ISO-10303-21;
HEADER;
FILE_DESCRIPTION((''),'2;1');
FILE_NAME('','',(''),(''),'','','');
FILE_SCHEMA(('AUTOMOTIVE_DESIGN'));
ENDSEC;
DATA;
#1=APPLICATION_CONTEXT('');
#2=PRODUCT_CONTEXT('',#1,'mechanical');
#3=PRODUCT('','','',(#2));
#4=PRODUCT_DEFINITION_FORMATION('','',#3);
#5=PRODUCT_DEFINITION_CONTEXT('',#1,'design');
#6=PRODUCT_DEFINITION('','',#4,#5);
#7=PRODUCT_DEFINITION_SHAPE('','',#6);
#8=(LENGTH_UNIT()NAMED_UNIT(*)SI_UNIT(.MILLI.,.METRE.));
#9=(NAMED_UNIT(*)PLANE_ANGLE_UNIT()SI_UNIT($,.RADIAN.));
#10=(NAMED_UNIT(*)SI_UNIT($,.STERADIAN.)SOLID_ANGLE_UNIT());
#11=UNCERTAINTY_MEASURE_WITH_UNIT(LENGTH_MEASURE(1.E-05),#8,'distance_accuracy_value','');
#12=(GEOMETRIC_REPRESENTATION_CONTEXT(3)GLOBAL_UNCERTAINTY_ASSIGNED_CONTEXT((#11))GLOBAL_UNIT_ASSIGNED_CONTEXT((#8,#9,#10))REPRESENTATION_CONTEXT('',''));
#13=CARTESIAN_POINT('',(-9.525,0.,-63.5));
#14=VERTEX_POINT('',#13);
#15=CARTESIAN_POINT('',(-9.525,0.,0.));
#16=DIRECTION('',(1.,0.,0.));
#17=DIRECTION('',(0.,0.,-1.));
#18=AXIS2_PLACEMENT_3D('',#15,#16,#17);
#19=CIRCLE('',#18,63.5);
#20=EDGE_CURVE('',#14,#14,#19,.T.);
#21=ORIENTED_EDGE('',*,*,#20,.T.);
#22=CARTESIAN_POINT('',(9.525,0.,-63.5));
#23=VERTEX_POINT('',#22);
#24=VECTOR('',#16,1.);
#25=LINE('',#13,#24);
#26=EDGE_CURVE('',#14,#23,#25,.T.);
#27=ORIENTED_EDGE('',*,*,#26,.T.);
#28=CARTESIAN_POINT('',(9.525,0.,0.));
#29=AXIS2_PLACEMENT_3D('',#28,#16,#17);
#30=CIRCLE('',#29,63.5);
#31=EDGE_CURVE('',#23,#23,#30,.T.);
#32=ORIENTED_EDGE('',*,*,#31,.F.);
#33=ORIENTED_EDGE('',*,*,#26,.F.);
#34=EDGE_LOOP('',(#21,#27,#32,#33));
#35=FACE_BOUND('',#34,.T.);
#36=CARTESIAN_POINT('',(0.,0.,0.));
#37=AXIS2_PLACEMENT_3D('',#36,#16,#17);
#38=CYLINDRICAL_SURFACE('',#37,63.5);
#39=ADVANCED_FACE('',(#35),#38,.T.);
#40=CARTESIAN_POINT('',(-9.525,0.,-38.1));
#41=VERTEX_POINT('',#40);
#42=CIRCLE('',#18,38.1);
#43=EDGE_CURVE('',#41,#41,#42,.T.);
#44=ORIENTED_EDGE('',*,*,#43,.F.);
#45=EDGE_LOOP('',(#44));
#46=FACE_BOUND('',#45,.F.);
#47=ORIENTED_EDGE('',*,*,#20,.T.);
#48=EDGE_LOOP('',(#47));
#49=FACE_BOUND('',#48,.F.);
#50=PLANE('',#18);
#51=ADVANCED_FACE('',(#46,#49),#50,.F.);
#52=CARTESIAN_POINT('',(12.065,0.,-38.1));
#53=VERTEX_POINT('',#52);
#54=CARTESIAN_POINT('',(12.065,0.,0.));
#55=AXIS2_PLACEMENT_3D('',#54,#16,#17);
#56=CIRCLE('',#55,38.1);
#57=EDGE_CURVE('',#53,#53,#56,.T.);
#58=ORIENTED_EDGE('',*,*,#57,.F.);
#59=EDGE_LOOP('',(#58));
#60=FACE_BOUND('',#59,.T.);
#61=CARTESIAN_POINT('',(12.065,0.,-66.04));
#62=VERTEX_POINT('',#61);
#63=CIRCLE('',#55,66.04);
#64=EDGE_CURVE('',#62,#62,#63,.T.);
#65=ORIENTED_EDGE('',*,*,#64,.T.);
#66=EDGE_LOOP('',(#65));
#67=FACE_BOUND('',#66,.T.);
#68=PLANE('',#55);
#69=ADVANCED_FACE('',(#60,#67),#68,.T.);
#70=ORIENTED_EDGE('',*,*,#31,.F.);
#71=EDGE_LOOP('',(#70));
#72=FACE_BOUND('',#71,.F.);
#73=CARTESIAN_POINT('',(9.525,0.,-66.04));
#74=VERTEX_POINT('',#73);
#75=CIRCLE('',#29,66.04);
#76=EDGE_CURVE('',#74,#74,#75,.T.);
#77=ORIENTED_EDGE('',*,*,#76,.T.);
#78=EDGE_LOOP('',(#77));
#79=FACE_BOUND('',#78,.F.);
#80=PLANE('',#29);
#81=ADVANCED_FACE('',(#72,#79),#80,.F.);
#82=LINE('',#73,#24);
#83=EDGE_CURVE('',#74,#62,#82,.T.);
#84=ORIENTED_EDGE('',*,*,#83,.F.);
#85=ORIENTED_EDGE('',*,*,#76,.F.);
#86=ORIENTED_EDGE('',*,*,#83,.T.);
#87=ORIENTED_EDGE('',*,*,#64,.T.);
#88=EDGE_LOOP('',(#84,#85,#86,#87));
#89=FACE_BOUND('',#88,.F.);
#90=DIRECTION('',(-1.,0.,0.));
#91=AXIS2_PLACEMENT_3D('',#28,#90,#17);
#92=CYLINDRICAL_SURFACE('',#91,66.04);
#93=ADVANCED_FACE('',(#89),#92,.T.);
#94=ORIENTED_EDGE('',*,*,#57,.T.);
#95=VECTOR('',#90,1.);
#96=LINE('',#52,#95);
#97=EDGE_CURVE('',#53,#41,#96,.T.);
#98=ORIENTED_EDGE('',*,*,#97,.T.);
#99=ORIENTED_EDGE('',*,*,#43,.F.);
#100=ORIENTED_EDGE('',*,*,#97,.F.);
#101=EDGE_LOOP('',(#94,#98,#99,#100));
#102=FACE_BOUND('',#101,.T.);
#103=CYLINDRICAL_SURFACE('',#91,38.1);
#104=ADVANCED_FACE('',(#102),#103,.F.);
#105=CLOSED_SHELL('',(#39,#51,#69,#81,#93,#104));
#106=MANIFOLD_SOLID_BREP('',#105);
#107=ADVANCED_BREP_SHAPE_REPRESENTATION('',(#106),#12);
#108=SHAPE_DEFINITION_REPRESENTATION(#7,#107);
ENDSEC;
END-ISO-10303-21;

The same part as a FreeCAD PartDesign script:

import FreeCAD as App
import Part
import Sketcher

V = App.Vector
Q = App.Units.Quantity

doc = App.newDocument("Part")
body = doc.addObject("PartDesign::Body", "Body")

sketch1 = body.newObject("Sketcher::SketchObject", "Sketch")
sketch1.AttachmentSupport = (doc.getObject("YZ_Plane"), [""])
sketch1.MapMode = "FlatFace"
sketch1.addGeometry([
    Part.Circle(V(0, 0, 0), V(0, 0, 1), 63.5),
    Part.Circle(V(0, 0, 0), V(0, 0, 1), 38.1),
], False)
sketch1.addConstraint([
    Sketcher.Constraint("Coincident", 0, 3, -1, 1),
    Sketcher.Constraint("Coincident", 1, 3, -1, 1),
    Sketcher.Constraint("Diameter", 0, Q("5 in")),
    Sketcher.Constraint("Diameter", 1, Q("3 in")),
])
pad1 = body.newObject("PartDesign::Pad", "Pad")
pad1.Profile = sketch1
pad1.Length = Q("0.75 in")
pad1.Midplane = True

sketch2 = body.newObject("Sketcher::SketchObject", "Sketch001")
sketch2.AttachmentSupport = (doc.getObject("YZ_Plane"), [""])
sketch2.MapMode = "FlatFace"
sketch2.AttachmentOffset = App.Placement(V(0, 0, 0.375 * 25.4), App.Rotation())
sketch2.addGeometry([
    Part.Circle(V(0, 0, 0), V(0, 0, 1), 66.04),
    Part.Circle(V(0, 0, 0), V(0, 0, 1), 38.1),
], False)
sketch2.addConstraint([
    Sketcher.Constraint("Coincident", 0, 3, -1, 1),
    Sketcher.Constraint("Coincident", 1, 3, -1, 1),
    Sketcher.Constraint("Diameter", 1, Q("3 in")),
    Sketcher.Constraint("Diameter", 0, Q("5.2 in")),
])
pad2 = body.newObject("PartDesign::Pad", "Pad001")
pad2.Profile = sketch2
pad2.Length = Q("0.1 in")

doc.recompute()
